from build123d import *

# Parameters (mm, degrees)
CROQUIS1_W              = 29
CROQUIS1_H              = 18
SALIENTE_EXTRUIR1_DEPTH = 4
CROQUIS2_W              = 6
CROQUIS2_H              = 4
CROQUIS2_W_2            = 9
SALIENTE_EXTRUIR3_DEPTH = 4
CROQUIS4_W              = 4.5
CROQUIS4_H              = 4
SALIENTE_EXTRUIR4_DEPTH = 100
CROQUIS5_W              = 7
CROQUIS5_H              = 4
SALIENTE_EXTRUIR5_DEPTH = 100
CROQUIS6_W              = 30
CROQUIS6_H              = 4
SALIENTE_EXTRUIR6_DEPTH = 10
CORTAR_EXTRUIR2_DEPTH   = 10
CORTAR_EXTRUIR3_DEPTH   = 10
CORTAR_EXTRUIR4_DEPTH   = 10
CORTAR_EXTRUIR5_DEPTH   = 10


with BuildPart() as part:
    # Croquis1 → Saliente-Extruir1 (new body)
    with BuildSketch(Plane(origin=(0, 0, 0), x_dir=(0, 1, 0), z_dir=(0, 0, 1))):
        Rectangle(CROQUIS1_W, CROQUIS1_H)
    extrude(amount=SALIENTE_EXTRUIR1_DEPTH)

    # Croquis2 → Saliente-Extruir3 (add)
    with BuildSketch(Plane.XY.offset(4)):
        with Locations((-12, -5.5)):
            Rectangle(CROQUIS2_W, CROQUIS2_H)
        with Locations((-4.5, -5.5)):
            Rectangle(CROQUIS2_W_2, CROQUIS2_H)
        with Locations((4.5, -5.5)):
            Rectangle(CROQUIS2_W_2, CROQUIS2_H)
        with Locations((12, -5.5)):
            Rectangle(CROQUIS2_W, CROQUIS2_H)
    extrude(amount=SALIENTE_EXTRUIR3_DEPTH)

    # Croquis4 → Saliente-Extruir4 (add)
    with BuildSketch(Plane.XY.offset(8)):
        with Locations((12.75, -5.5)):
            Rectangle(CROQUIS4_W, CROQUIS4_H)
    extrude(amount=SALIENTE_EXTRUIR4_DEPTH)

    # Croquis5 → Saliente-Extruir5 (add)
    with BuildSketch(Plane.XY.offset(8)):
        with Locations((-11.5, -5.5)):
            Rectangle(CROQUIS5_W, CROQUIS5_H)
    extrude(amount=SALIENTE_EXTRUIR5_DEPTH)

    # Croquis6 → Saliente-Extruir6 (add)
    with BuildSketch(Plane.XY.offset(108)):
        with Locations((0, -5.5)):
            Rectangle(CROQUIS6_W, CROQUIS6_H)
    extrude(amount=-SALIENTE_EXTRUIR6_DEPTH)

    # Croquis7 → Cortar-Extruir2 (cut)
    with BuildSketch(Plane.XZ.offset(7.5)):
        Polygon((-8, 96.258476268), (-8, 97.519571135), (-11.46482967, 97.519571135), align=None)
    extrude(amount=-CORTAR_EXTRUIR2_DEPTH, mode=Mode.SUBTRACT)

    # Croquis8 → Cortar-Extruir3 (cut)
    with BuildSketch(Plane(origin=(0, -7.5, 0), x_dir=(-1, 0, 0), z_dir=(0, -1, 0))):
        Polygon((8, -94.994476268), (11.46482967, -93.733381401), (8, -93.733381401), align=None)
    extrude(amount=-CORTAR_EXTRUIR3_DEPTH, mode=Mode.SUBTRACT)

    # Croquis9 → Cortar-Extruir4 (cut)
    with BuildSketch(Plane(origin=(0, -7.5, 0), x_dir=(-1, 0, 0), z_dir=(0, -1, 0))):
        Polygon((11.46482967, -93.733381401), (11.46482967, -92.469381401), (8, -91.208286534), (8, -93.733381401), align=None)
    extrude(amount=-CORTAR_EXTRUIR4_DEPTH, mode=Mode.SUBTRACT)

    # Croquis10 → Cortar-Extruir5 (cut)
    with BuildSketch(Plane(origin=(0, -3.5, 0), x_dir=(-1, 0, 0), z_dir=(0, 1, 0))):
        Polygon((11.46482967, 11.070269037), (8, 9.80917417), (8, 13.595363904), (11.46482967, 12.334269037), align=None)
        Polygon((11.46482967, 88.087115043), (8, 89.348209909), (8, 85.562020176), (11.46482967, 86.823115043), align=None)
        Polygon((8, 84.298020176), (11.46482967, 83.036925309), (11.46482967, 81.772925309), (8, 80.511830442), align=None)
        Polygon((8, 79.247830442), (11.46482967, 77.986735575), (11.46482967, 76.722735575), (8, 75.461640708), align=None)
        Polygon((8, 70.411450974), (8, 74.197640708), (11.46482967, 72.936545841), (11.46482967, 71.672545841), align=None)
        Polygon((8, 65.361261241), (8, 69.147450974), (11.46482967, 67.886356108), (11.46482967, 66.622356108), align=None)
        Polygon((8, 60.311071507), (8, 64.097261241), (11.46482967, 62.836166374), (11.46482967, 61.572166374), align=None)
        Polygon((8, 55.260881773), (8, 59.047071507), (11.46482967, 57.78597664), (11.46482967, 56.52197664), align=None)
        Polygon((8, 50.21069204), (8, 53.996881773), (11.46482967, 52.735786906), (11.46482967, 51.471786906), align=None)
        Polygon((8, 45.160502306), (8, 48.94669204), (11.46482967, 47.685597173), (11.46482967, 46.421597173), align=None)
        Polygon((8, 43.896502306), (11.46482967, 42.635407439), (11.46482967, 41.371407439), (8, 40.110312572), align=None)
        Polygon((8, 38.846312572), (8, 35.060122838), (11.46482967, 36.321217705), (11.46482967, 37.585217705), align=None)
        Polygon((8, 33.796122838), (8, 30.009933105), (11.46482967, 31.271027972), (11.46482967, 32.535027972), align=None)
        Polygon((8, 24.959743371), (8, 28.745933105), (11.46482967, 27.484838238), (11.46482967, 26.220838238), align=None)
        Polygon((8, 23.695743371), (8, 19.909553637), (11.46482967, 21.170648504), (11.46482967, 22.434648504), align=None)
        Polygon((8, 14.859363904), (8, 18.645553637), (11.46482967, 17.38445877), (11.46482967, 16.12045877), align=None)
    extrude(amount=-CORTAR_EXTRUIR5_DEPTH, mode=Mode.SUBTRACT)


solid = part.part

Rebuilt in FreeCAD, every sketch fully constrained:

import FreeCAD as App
import Part
import Sketcher

V = App.Vector
Q = App.Units.Quantity


def add_polygon(sketch, points):
    """Adds a closed chain of lines whose ends are joined by coincident constraints."""
    first, n = sketch.GeometryCount, len(points)
    for a, b in zip(points, points[1:] + points[:1]):
        sketch.addGeometry(Part.LineSegment(App.Vector(*a, 0), App.Vector(*b, 0)), False)
    for i in range(n):
        sketch.addConstraint(Sketcher.Constraint("Coincident", first + i, 2, first + (i + 1) % n, 1))

doc = App.newDocument("Part")
body = doc.addObject("PartDesign::Body", "Body")

# Sketch on XY plane
sketch1 = body.newObject("Sketcher::SketchObject", "Sketch")
sketch1.AttachmentSupport = (doc.getObject("XY_Plane"), [""])
sketch1.MapMode = "FlatFace"
add_polygon(sketch1, [(-9, -14.5), (9, -14.5), (9, 14.5), (-9, 14.5)])  # lines 0-3
sketch1.addConstraint(Sketcher.Constraint("Horizontal", 0))
sketch1.addConstraint(Sketcher.Constraint("Vertical", 1))
sketch1.addConstraint(Sketcher.Constraint("Horizontal", 2))
sketch1.addConstraint(Sketcher.Constraint("Vertical", 3))
sketch1.addConstraint(Sketcher.Constraint("Symmetric", 0, 2, 2, 2, -1, 1))
sketch1.addConstraint(Sketcher.Constraint("DistanceX", 0, 1, 0, 2, 18.0))
sketch1.addConstraint(Sketcher.Constraint("DistanceY", 1, 1, 1, 2, 29.0))
pad1 = body.newObject("PartDesign::Pad", "Pad")
pad1.Profile = sketch1
pad1.Length = 4

# Sketch on XY plane
sketch2 = body.newObject("Sketcher::SketchObject", "Sketch001")
sketch2.AttachmentSupport = (doc.getObject("XY_Plane"), [""])
sketch2.MapMode = "FlatFace"
sketch2.AttachmentOffset = App.Placement(V(0, 0, 4), App.Rotation())
add_polygon(sketch2, [(-15, -3.5), (-15, -7.5), (15, -7.5), (15, -3.5)])  # lines 0-3
sketch2.addConstraint(Sketcher.Constraint("Vertical", 0))
sketch2.addConstraint(Sketcher.Constraint("Horizontal", 1))
sketch2.addConstraint(Sketcher.Constraint("Vertical", 2))
sketch2.addConstraint(Sketcher.Constraint("Horizontal", 3))
sketch2.addConstraint(Sketcher.Constraint("DistanceX", 1, 1, 1, 2, 30.0))
sketch2.addConstraint(Sketcher.Constraint("DistanceY", 0, 2, 0, 1, 4.0))
sketch2.addConstraint(Sketcher.Constraint("DistanceX", 0, 2, -1, 1, 15.0))
sketch2.addConstraint(Sketcher.Constraint("DistanceY", 0, 2, -1, 1, 7.5))
pad2 = body.newObject("PartDesign::Pad", "Pad001")
pad2.Profile = sketch2
pad2.Length = 4

# Sketch on XY plane
sketch3 = body.newObject("Sketcher::SketchObject", "Sketch002")
sketch3.AttachmentSupport = (doc.getObject("XY_Plane"), [""])
sketch3.MapMode = "FlatFace"
sketch3.AttachmentOffset = App.Placement(V(0, 0, 8), App.Rotation())
add_polygon(sketch3, [(10.5, -3.5), (10.5, -7.5), (15, -7.5), (15, -3.5)])  # lines 0-3
sketch3.addConstraint(Sketcher.Constraint("Vertical", 0))
sketch3.addConstraint(Sketcher.Constraint("Horizontal", 1))
sketch3.addConstraint(Sketcher.Constraint("Vertical", 2))
sketch3.addConstraint(Sketcher.Constraint("Horizontal", 3))
sketch3.addConstraint(Sketcher.Constraint("DistanceY", 0, 2, 0, 1, 4.0))
sketch3.addConstraint(Sketcher.Constraint("DistanceX", 1, 1, 1, 2, 4.5))
sketch3.addConstraint(Sketcher.Constraint("DistanceX", -1, 1, 1, 2, 15.0))
sketch3.addConstraint(Sketcher.Constraint("DistanceY", 0, 2, -1, 1, 7.5))
pad3 = body.newObject("PartDesign::Pad", "Pad002")
pad3.Profile = sketch3
pad3.Length = 100

# Sketch on XY plane
sketch4 = body.newObject("Sketcher::SketchObject", "Sketch003")
sketch4.AttachmentSupport = (doc.getObject("XY_Plane"), [""])
sketch4.MapMode = "FlatFace"
sketch4.AttachmentOffset = App.Placement(V(0, 0, 8), App.Rotation())
add_polygon(sketch4, [(-15, -3.5), (-15, -7.5), (-8, -7.5), (-8, -3.5)])  # lines 0-3
sketch4.addConstraint(Sketcher.Constraint("Vertical", 0))
sketch4.addConstraint(Sketcher.Constraint("Horizontal", 1))
sketch4.addConstraint(Sketcher.Constraint("Vertical", 2))
sketch4.addConstraint(Sketcher.Constraint("Horizontal", 3))
sketch4.addConstraint(Sketcher.Constraint("DistanceX", 1, 1, 1, 2, 7.0))
sketch4.addConstraint(Sketcher.Constraint("DistanceY", 0, 2, 0, 1, 4.0))
sketch4.addConstraint(Sketcher.Constraint("DistanceX", 0, 2, -1, 1, 15.0))
sketch4.addConstraint(Sketcher.Constraint("DistanceY", 0, 2, -1, 1, 7.5))
pad4 = body.newObject("PartDesign::Pad", "Pad003")
pad4.Profile = sketch4
pad4.Length = 100

# Sketch on XY plane
sketch5 = body.newObject("Sketcher::SketchObject", "Sketch004")
sketch5.AttachmentSupport = (doc.getObject("XY_Plane"), [""])
sketch5.MapMode = "FlatFace"
sketch5.AttachmentOffset = App.Placement(V(0, 0, 108), App.Rotation())
add_polygon(sketch5, [(-15, -3.5), (-15, -7.5), (15, -7.5), (15, -3.5)])  # lines 0-3
sketch5.addConstraint(Sketcher.Constraint("Vertical", 0))
sketch5.addConstraint(Sketcher.Constraint("Horizontal", 1))
sketch5.addConstraint(Sketcher.Constraint("Vertical", 2))
sketch5.addConstraint(Sketcher.Constraint("Horizontal", 3))
sketch5.addConstraint(Sketcher.Constraint("DistanceX", 1, 1, 1, 2, 30.0))
sketch5.addConstraint(Sketcher.Constraint("DistanceY", 0, 2, 0, 1, 4.0))
sketch5.addConstraint(Sketcher.Constraint("DistanceX", 0, 2, -1, 1, 15.0))
sketch5.addConstraint(Sketcher.Constraint("DistanceY", 0, 2, -1, 1, 7.5))
pad5 = body.newObject("PartDesign::Pad", "Pad004")
pad5.Profile = sketch5
pad5.Length = 10
pad5.Reversed = True

# Sketch on XZ plane
sketch6 = body.newObject("Sketcher::SketchObject", "Sketch005")
sketch6.AttachmentSupport = (doc.getObject("XZ_Plane"), [""])
sketch6.MapMode = "FlatFace"
sketch6.AttachmentOffset = App.Placement(V(0, 0, 7.5), App.Rotation())
add_polygon(sketch6, [(-8, 96.258476), (-8, 97.519571), (-11.46483, 97.519571)])  # lines 0-2
sketch6.addConstraint(Sketcher.Constraint("Vertical", 0))
sketch6.addConstraint(Sketcher.Constraint("Horizontal", 1))
sketch6.addConstraint(Sketcher.Constraint("Angle", 2, Q("-20 deg")))
sketch6.addConstraint(Sketcher.Constraint("DistanceX", 0, 2, -1, 1, 8.0))
sketch6.addConstraint(Sketcher.Constraint("DistanceX", 1, 2, 1, 1, 3.46483))
sketch6.addConstraint(Sketcher.Constraint("DistanceY", -1, 1, 0, 2, 97.519571))
pocket1 = body.newObject("PartDesign::Pocket", "Pocket")
pocket1.Profile = sketch6
pocket1.Length = 10

# Sketch on XZ plane
sketch7 = body.newObject("Sketcher::SketchObject", "Sketch006")
sketch7.AttachmentSupport = (doc.getObject("XZ_Plane"), [""])
sketch7.MapMode = "FlatFace"
sketch7.AttachmentOffset = App.Placement(V(0, 0, 7.5), App.Rotation())
add_polygon(sketch7, [(-8, 94.994476), (-11.46483, 93.733381), (-8, 93.733381)])  # lines 0-2
sketch7.addConstraint(Sketcher.Constraint("Horizontal", 1))
sketch7.addConstraint(Sketcher.Constraint("Vertical", 2))
sketch7.addConstraint(Sketcher.Constraint("Angle", 0, Q("-160 deg")))
sketch7.addConstraint(Sketcher.Constraint("DistanceX", 1, 2, -1, 1, 8.0))
sketch7.addConstraint(Sketcher.Constraint("DistanceX", 1, 1, 1, 2, 3.46483))
sketch7.addConstraint(Sketcher.Constraint("DistanceY", -1, 1, 0, 2, 93.733381))
pocket2 = body.newObject("PartDesign::Pocket", "Pocket001")
pocket2.Profile = sketch7
pocket2.Length = 10

# Sketch on XZ plane
sketch8 = body.newObject("Sketcher::SketchObject", "Sketch007")
sketch8.AttachmentSupport = (doc.getObject("XZ_Plane"), [""])
sketch8.MapMode = "FlatFace"
sketch8.AttachmentOffset = App.Placement(V(0, 0, 7.5), App.Rotation())
add_polygon(sketch8, [(-11.46483, 93.733381), (-11.46483, 92.469381), (-8, 91.208287), (-8, 93.733381)])  # lines 0-3
sketch8.addConstraint(Sketcher.Constraint("Vertical", 0))
sketch8.addConstraint(Sketcher.Constraint("Vertical", 2))
sketch8.addConstraint(Sketcher.Constraint("Horizontal", 3))
sketch8.addConstraint(Sketcher.Constraint("Angle", 1, Q("-20 deg")))
sketch8.addConstraint(Sketcher.Constraint("DistanceX", 1, 2, -1, 1, 8.0))
sketch8.addConstraint(Sketcher.Constraint("DistanceY", 0, 2, 0, 1, 1.264))
sketch8.addConstraint(Sketcher.Constraint("DistanceX", 3, 2, 3, 1, 3.46483))
sketch8.addConstraint(Sketcher.Constraint("DistanceY", -1, 1, 0, 2, 92.469381))
pocket3 = body.newObject("PartDesign::Pocket", "Pocket002")
pocket3.Profile = sketch8
pocket3.Length = 10

# Sketch on XZ plane
sketch9 = body.newObject("Sketcher::SketchObject", "Sketch008")
sketch9.AttachmentSupport = (doc.getObject("XZ_Plane"), [""])
sketch9.MapMode = "FlatFace"
sketch9.AttachmentOffset = App.Placement(V(0, 0, 3.5), App.Rotation())
add_polygon(sketch9, [(-8, 9.809174), (-11.46483, 11.070269), (-11.46483, 12.334269), (-8, 13.595364)])  # lines 0-3
add_polygon(sketch9, [(-11.46483, 88.087115), (-8, 89.34821), (-8, 85.56202), (-11.46483, 86.823115)])  # lines 4-7
add_polygon(sketch9, [(-11.46483, 83.036925), (-8, 84.29802), (-8, 80.51183), (-11.46483, 81.772925)])  # lines 8-11
add_polygon(sketch9, [(-11.46483, 77.986736), (-8, 79.24783), (-8, 75.461641), (-11.46483, 76.722736)])  # lines 12-15
add_polygon(sketch9, [(-8, 74.197641), (-8, 70.411451), (-11.46483, 71.672546), (-11.46483, 72.936546)])  # lines 16-19
add_polygon(sketch9, [(-8, 69.147451), (-8, 65.361261), (-11.46483, 66.622356), (-11.46483, 67.886356)])  # lines 20-23
add_polygon(sketch9, [(-8, 64.097261), (-8, 60.311072), (-11.46483, 61.572166), (-11.46483, 62.836166)])  # lines 24-27
add_polygon(sketch9, [(-8, 59.047072), (-8, 55.260882), (-11.46483, 56.521977), (-11.46483, 57.785977)])  # lines 28-31
add_polygon(sketch9, [(-8, 53.996882), (-8, 50.210692), (-11.46483, 51.471787), (-11.46483, 52.735787)])  # lines 32-35
add_polygon(sketch9, [(-8, 48.946692), (-8, 45.160502), (-11.46483, 46.421597), (-11.46483, 47.685597)])  # lines 36-39
add_polygon(sketch9, [(-11.46483, 42.635407), (-8, 43.896502), (-8, 40.110313), (-11.46483, 41.371407)])  # lines 40-43
add_polygon(sketch9, [(-8, 38.846313), (-8, 35.060123), (-11.46483, 36.321218), (-11.46483, 37.585218)])  # lines 44-47
add_polygon(sketch9, [(-8, 33.796123), (-8, 30.009933), (-11.46483, 31.271028), (-11.46483, 32.535028)])  # lines 48-51
add_polygon(sketch9, [(-8, 28.745933), (-8, 24.959743), (-11.46483, 26.220838), (-11.46483, 27.484838)])  # lines 52-55
add_polygon(sketch9, [(-8, 23.695743), (-8, 19.909554), (-11.46483, 21.170649), (-11.46483, 22.434649)])  # lines 56-59
add_polygon(sketch9, [(-8, 18.645554), (-8, 14.859364), (-11.46483, 16.120459), (-11.46483, 17.384459)])  # lines 60-63
sketch9.addConstraint(Sketcher.Constraint("Vertical", 1))
sketch9.addConstraint(Sketcher.Constraint("Vertical", 3))
sketch9.addConstraint(Sketcher.Constraint("Vertical", 5))
sketch9.addConstraint(Sketcher.Constraint("Vertical", 7))
sketch9.addConstraint(Sketcher.Constraint("Vertical", 9))
sketch9.addConstraint(Sketcher.Constraint("Vertical", 11))
sketch9.addConstraint(Sketcher.Constraint("Vertical", 13))
sketch9.addConstraint(Sketcher.Constraint("Vertical", 15))
sketch9.addConstraint(Sketcher.Constraint("Vertical", 16))
sketch9.addConstraint(Sketcher.Constraint("Vertical", 18))
sketch9.addConstraint(Sketcher.Constraint("Vertical", 20))
sketch9.addConstraint(Sketcher.Constraint("Vertical", 22))
sketch9.addConstraint(Sketcher.Constraint("Vertical", 24))
sketch9.addConstraint(Sketcher.Constraint("Vertical", 26))
sketch9.addConstraint(Sketcher.Constraint("Vertical", 28))
sketch9.addConstraint(Sketcher.Constraint("Vertical", 30))
sketch9.addConstraint(Sketcher.Constraint("Vertical", 32))
sketch9.addConstraint(Sketcher.Constraint("Vertical", 34))
sketch9.addConstraint(Sketcher.Constraint("Vertical", 36))
sketch9.addConstraint(Sketcher.Constraint("Vertical", 38))
sketch9.addConstraint(Sketcher.Constraint("Vertical", 41))
sketch9.addConstraint(Sketcher.Constraint("Vertical", 43))
sketch9.addConstraint(Sketcher.Constraint("Vertical", 44))
sketch9.addConstraint(Sketcher.Constraint("Vertical", 46))
sketch9.addConstraint(Sketcher.Constraint("Vertical", 48))
sketch9.addConstraint(Sketcher.Constraint("Vertical", 50))
sketch9.addConstraint(Sketcher.Constraint("Vertical", 52))
sketch9.addConstraint(Sketcher.Constraint("Vertical", 54))
sketch9.addConstraint(Sketcher.Constraint("Vertical", 56))
sketch9.addConstraint(Sketcher.Constraint("Vertical", 58))
sketch9.addConstraint(Sketcher.Constraint("Vertical", 60))
sketch9.addConstraint(Sketcher.Constraint("Vertical", 62))
sketch9.addConstraint(Sketcher.Constraint("Parallel", 2, 4))
sketch9.addConstraint(Sketcher.Constraint("Parallel", 0, 6))
sketch9.addConstraint(Sketcher.Constraint("Parallel", 4, 8))
sketch9.addConstraint(Sketcher.Constraint("Parallel", 6, 10))
sketch9.addConstraint(Sketcher.Constraint("Parallel", 8, 12))
sketch9.addConstraint(Sketcher.Constraint("Parallel", 10, 14))
sketch9.addConstraint(Sketcher.Constraint("Parallel", 14, 17))
sketch9.addConstraint(Sketcher.Constraint("Parallel", 12, 19))
sketch9.addConstraint(Sketcher.Constraint("Parallel", 17, 21))
sketch9.addConstraint(Sketcher.Constraint("Parallel", 19, 23))
sketch9.addConstraint(Sketcher.Constraint("Parallel", 21, 25))
sketch9.addConstraint(Sketcher.Constraint("Parallel", 23, 27))
sketch9.addConstraint(Sketcher.Constraint("Parallel", 25, 29))
sketch9.addConstraint(Sketcher.Constraint("Parallel", 27, 31))
sketch9.addConstraint(Sketcher.Constraint("Parallel", 29, 33))
sketch9.addConstraint(Sketcher.Constraint("Parallel", 31, 35))
sketch9.addConstraint(Sketcher.Constraint("Parallel", 33, 37))
sketch9.addConstraint(Sketcher.Constraint("Parallel", 35, 39))
sketch9.addConstraint(Sketcher.Constraint("Parallel", 39, 40))
sketch9.addConstraint(Sketcher.Constraint("Parallel", 37, 42))
sketch9.addConstraint(Sketcher.Constraint("Parallel", 42, 45))
sketch9.addConstraint(Sketcher.Constraint("Parallel", 40, 47))
sketch9.addConstraint(Sketcher.Constraint("Parallel", 45, 49))
sketch9.addConstraint(Sketcher.Constraint("Parallel", 47, 51))
sketch9.addConstraint(Sketcher.Constraint("Parallel", 49, 53))
sketch9.addConstraint(Sketcher.Constraint("Parallel", 51, 55))
sketch9.addConstraint(Sketcher.Constraint("Parallel", 53, 57))
sketch9.addConstraint(Sketcher.Constraint("Parallel", 55, 59))
sketch9.addConstraint(Sketcher.Constraint("Parallel", 57, 61))
sketch9.addConstraint(Sketcher.Constraint("Parallel", 59, 63))
sketch9.addConstraint(Sketcher.Constraint("Vertical", 3, 2, 4, 2))
sketch9.addConstraint(Sketcher.Constraint("Vertical", 1, 2, 6, 2))
sketch9.addConstraint(Sketcher.Constraint("Vertical", 5, 2, 8, 2))
sketch9.addConstraint(Sketcher.Constraint("Vertical", 7, 2, 10, 2))
sketch9.addConstraint(Sketcher.Constraint("Vertical", 9, 2, 12, 2))
sketch9.addConstraint(Sketcher.Constraint("Vertical", 11, 2, 14, 2))
sketch9.addConstraint(Sketcher.Constraint("Vertical", 13, 2, 16, 2))
sketch9.addConstraint(Sketcher.Constraint("Vertical", 15, 2, 17, 2))
sketch9.addConstraint(Sketcher.Constraint("Vertical", 19, 2, 20, 2))
sketch9.addConstraint(Sketcher.Constraint("Vertical", 18, 2, 21, 2))
sketch9.addConstraint(Sketcher.Constraint("Vertical", 23, 2, 24, 2))
sketch9.addConstraint(Sketcher.Constraint("Vertical", 22, 2, 25, 2))
sketch9.addConstraint(Sketcher.Constraint("Vertical", 27, 2, 28, 2))
sketch9.addConstraint(Sketcher.Constraint("Vertical", 26, 2, 29, 2))
sketch9.addConstraint(Sketcher.Constraint("Vertical", 31, 2, 32, 2))
sketch9.addConstraint(Sketcher.Constraint("Vertical", 30, 2, 33, 2))
sketch9.addConstraint(Sketcher.Constraint("Vertical", 35, 2, 36, 2))
sketch9.addConstraint(Sketcher.Constraint("Vertical", 34, 2, 37, 2))
sketch9.addConstraint(Sketcher.Constraint("Vertical", 39, 2, 40, 2))
sketch9.addConstraint(Sketcher.Constraint("Vertical", 38, 2, 42, 2))
sketch9.addConstraint(Sketcher.Constraint("Vertical", 41, 2, 44, 2))
sketch9.addConstraint(Sketcher.Constraint("Vertical", 43, 2, 45, 2))
sketch9.addConstraint(Sketcher.Constraint("Vertical", 47, 2, 48, 2))
sketch9.addConstraint(Sketcher.Constraint("Vertical", 46, 2, 49, 2))
sketch9.addConstraint(Sketcher.Constraint("Vertical", 51, 2, 52, 2))
sketch9.addConstraint(Sketcher.Constraint("Vertical", 50, 2, 53, 2))
sketch9.addConstraint(Sketcher.Constraint("Vertical", 55, 2, 56, 2))
sketch9.addConstraint(Sketcher.Constraint("Vertical", 54, 2, 57, 2))
sketch9.addConstraint(Sketcher.Constraint("Vertical", 59, 2, 60, 2))
sketch9.addConstraint(Sketcher.Constraint("Vertical", 58, 2, 61, 2))
sketch9.addConstraint(Sketcher.Constraint("Equal", 3, 5))
sketch9.addConstraint(Sketcher.Constraint("Equal", 5, 9))
sketch9.addConstraint(Sketcher.Constraint("Equal", 9, 13))
sketch9.addConstraint(Sketcher.Constraint("Equal", 13, 16))
sketch9.addConstraint(Sketcher.Constraint("Equal", 16, 20))
sketch9.addConstraint(Sketcher.Constraint("Equal", 20, 24))
sketch9.addConstraint(Sketcher.Constraint("Equal", 24, 28))
sketch9.addConstraint(Sketcher.Constraint("Equal", 28, 32))
sketch9.addConstraint(Sketcher.Constraint("Equal", 32, 36))
sketch9.addConstraint(Sketcher.Constraint("Equal", 36, 41))
sketch9.addConstraint(Sketcher.Constraint("Equal", 41, 44))
sketch9.addConstraint(Sketcher.Constraint("Equal", 44, 48))
sketch9.addConstraint(Sketcher.Constraint("Equal", 48, 52))
sketch9.addConstraint(Sketcher.Constraint("Equal", 52, 56))
sketch9.addConstraint(Sketcher.Constraint("Equal", 56, 60))
sketch9.addConstraint(Sketcher.Constraint("Equal", 0, 2))
sketch9.addConstraint(Sketcher.Constraint("Angle", 0, Q("160 deg")))
sketch9.addConstraint(Sketcher.Constraint("DistanceX", 2, 2, -1, 1, 8.0))
sketch9.addConstraint(Sketcher.Constraint("DistanceY", 1, 1, 1, 2, 1.264))
sketch9.addConstraint(Sketcher.Constraint("DistanceY", 3, 2, 3, 1, 3.78619))
sketch9.addConstraint(Sketcher.Constraint("DistanceY", -1, 1, 0, 2, 11.070269))
sketch9.addConstraint(Sketcher.Constraint("DistanceY", -1, 1, 4, 2, 89.34821))
sketch9.addConstraint(Sketcher.Constraint("DistanceY", -1, 1, 8, 2, 84.29802))
sketch9.addConstraint(Sketcher.Constraint("DistanceY", -1, 1, 12, 2, 79.24783))
sketch9.addConstraint(Sketcher.Constraint("DistanceY", -1, 1, 16, 2, 70.411451))
sketch9.addConstraint(Sketcher.Constraint("DistanceY", -1, 1, 20, 2, 65.361261))
sketch9.addConstraint(Sketcher.Constraint("DistanceY", -1, 1, 24, 2, 60.311072))
sketch9.addConstraint(Sketcher.Constraint("DistanceY", -1, 1, 28, 2, 55.260882))
sketch9.addConstraint(Sketcher.Constraint("DistanceY", -1, 1, 35, 2, 53.996882))
sketch9.addConstraint(Sketcher.Constraint("DistanceY", -1, 1, 53, 2, 26.220838))
sketch9.addConstraint(Sketcher.Constraint("DistanceY", -1, 1, 57, 2, 21.170649))
sketch9.addConstraint(Sketcher.Constraint("DistanceY", -1, 1, 61, 2, 16.120459))
sketch9.addConstraint(Sketcher.Constraint("DistanceY", -1, 1, 36, 2, 45.160502))
sketch9.addConstraint(Sketcher.Constraint("DistanceY", -1, 1, 40, 2, 43.896502))
sketch9.addConstraint(Sketcher.Constraint("DistanceY", -1, 1, 44, 2, 35.060123))
sketch9.addConstraint(Sketcher.Constraint("DistanceY", -1, 1, 48, 2, 30.009933))
pocket4 = body.newObject("PartDesign::Pocket", "Pocket003")
pocket4.Profile = sketch9
pocket4.Length = 10
pocket4.Reversed = True

doc.recompute()
